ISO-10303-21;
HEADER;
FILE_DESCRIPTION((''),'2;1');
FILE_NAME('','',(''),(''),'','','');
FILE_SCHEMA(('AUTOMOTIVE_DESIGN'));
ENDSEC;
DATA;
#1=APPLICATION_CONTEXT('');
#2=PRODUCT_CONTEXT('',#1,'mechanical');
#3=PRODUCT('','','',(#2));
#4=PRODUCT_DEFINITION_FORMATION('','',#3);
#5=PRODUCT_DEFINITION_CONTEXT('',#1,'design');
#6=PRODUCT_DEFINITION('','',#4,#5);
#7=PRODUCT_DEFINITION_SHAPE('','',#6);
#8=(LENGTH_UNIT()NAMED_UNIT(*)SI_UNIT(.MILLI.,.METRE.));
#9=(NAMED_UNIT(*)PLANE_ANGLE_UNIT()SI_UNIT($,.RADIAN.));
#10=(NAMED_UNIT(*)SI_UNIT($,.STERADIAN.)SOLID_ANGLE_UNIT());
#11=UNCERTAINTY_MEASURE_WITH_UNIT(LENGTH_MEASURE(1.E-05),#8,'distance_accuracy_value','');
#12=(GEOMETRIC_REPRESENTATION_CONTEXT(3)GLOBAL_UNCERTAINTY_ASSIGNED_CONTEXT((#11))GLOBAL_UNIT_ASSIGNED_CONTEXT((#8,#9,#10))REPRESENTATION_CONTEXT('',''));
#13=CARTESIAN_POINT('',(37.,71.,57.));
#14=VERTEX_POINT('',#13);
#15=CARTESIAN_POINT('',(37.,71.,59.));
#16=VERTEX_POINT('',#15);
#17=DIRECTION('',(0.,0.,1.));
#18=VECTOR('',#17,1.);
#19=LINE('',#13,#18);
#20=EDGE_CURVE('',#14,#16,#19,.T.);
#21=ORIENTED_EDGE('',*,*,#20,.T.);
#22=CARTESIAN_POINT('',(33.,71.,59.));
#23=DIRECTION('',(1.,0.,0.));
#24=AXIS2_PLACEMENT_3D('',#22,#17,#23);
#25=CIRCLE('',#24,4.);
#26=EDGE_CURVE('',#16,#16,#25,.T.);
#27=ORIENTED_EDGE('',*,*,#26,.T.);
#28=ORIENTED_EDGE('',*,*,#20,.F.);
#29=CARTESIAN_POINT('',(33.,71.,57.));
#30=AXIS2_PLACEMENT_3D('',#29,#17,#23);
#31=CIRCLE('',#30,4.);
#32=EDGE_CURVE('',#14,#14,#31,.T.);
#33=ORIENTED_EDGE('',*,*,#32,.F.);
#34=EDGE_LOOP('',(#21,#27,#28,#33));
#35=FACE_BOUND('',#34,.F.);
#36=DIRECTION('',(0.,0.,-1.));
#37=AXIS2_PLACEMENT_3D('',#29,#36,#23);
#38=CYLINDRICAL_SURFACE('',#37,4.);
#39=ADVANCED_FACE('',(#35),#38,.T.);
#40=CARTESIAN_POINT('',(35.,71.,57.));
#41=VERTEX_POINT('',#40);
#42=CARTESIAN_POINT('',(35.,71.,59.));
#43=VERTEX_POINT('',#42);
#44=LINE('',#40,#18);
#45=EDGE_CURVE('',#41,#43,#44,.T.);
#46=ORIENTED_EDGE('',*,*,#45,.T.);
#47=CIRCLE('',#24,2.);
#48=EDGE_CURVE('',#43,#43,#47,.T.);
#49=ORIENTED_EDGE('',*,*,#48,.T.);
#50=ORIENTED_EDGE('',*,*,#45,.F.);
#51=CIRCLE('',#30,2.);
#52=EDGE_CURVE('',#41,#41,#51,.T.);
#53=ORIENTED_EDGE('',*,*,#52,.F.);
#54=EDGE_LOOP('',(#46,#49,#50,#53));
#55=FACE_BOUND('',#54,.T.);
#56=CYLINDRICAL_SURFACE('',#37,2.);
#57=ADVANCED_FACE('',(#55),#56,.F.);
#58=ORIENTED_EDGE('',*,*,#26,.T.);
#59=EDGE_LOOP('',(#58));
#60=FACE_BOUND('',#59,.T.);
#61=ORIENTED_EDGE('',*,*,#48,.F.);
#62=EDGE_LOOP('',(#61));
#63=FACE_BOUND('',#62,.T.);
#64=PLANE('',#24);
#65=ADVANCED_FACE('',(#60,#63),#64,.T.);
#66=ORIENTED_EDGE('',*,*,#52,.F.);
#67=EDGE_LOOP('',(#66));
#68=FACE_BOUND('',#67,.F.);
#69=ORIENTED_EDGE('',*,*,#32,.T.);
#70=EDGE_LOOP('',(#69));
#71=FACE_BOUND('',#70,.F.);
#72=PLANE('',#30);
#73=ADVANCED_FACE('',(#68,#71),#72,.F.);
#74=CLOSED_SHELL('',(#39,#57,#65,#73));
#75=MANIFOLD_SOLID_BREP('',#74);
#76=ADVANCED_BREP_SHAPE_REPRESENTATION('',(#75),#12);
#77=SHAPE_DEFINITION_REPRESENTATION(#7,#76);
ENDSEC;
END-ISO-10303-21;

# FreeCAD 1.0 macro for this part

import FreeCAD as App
import Part
import Sketcher
from FreeCAD import Vector
Q = App.Units.Quantity

doc = App.newDocument("Part")
body = doc.addObject("PartDesign::Body", "Body")

# Sketch on XY plane
sketch1 = body.newObject("Sketcher::SketchObject", "Sketch")
sketch1.AttachmentSupport = (doc.getObject("XY_Plane"), [""])
sketch1.MapMode = "FlatFace"
sketch1.addGeometry(Part.Circle(Vector(0, 0, 0), Vector(0, 0, 1), 2), False)
sketch1.addConstraint(Sketcher.Constraint("Coincident", 0, 3, -1, 1))
sketch1.addConstraint(Sketcher.Constraint("Diameter", 0, Q("4 mm")))
pad1 = body.newObject("PartDesign::Pad", "Pad")
pad1.Profile = sketch1
pad1.Length = 2
body2 = doc.addObject("PartDesign::Body", "Body001")

# Sketch on XY plane
sketch2 = body2.newObject("Sketcher::SketchObject", "Sketch001")
sketch2.AttachmentSupport = (doc.getObject("XY_Plane001"), [""])
sketch2.MapMode = "FlatFace"
sketch2.addGeometry(Part.Circle(Vector(0, 0, 0), Vector(0, 0, 1), 4), False)
sketch2.addConstraint(Sketcher.Constraint("Coincident", 0, 3, -1, 1))
sketch2.addConstraint(Sketcher.Constraint("Diameter", 0, Q("8 mm")))
pad2 = body2.newObject("PartDesign::Pad", "Pad001")
pad2.Profile = sketch2
pad2.Length = 2
doc.recompute()

boolean = body2.newObject("PartDesign::Boolean", "Boolean")
boolean.Type = "Cut"
boolean.addObjects([body])
body3 = doc.addObject("PartDesign::Body", "Body002")
doc.recompute()

body2.Placement = App.Placement(Vector(33, 71, 57), App.Rotation(Vector(0, 0, 1), 0))
boolean2 = body3.newObject("PartDesign::Boolean", "Boolean001")
boolean2.Type = "Fuse"
boolean2.addObjects([body2])

doc.recompute()
